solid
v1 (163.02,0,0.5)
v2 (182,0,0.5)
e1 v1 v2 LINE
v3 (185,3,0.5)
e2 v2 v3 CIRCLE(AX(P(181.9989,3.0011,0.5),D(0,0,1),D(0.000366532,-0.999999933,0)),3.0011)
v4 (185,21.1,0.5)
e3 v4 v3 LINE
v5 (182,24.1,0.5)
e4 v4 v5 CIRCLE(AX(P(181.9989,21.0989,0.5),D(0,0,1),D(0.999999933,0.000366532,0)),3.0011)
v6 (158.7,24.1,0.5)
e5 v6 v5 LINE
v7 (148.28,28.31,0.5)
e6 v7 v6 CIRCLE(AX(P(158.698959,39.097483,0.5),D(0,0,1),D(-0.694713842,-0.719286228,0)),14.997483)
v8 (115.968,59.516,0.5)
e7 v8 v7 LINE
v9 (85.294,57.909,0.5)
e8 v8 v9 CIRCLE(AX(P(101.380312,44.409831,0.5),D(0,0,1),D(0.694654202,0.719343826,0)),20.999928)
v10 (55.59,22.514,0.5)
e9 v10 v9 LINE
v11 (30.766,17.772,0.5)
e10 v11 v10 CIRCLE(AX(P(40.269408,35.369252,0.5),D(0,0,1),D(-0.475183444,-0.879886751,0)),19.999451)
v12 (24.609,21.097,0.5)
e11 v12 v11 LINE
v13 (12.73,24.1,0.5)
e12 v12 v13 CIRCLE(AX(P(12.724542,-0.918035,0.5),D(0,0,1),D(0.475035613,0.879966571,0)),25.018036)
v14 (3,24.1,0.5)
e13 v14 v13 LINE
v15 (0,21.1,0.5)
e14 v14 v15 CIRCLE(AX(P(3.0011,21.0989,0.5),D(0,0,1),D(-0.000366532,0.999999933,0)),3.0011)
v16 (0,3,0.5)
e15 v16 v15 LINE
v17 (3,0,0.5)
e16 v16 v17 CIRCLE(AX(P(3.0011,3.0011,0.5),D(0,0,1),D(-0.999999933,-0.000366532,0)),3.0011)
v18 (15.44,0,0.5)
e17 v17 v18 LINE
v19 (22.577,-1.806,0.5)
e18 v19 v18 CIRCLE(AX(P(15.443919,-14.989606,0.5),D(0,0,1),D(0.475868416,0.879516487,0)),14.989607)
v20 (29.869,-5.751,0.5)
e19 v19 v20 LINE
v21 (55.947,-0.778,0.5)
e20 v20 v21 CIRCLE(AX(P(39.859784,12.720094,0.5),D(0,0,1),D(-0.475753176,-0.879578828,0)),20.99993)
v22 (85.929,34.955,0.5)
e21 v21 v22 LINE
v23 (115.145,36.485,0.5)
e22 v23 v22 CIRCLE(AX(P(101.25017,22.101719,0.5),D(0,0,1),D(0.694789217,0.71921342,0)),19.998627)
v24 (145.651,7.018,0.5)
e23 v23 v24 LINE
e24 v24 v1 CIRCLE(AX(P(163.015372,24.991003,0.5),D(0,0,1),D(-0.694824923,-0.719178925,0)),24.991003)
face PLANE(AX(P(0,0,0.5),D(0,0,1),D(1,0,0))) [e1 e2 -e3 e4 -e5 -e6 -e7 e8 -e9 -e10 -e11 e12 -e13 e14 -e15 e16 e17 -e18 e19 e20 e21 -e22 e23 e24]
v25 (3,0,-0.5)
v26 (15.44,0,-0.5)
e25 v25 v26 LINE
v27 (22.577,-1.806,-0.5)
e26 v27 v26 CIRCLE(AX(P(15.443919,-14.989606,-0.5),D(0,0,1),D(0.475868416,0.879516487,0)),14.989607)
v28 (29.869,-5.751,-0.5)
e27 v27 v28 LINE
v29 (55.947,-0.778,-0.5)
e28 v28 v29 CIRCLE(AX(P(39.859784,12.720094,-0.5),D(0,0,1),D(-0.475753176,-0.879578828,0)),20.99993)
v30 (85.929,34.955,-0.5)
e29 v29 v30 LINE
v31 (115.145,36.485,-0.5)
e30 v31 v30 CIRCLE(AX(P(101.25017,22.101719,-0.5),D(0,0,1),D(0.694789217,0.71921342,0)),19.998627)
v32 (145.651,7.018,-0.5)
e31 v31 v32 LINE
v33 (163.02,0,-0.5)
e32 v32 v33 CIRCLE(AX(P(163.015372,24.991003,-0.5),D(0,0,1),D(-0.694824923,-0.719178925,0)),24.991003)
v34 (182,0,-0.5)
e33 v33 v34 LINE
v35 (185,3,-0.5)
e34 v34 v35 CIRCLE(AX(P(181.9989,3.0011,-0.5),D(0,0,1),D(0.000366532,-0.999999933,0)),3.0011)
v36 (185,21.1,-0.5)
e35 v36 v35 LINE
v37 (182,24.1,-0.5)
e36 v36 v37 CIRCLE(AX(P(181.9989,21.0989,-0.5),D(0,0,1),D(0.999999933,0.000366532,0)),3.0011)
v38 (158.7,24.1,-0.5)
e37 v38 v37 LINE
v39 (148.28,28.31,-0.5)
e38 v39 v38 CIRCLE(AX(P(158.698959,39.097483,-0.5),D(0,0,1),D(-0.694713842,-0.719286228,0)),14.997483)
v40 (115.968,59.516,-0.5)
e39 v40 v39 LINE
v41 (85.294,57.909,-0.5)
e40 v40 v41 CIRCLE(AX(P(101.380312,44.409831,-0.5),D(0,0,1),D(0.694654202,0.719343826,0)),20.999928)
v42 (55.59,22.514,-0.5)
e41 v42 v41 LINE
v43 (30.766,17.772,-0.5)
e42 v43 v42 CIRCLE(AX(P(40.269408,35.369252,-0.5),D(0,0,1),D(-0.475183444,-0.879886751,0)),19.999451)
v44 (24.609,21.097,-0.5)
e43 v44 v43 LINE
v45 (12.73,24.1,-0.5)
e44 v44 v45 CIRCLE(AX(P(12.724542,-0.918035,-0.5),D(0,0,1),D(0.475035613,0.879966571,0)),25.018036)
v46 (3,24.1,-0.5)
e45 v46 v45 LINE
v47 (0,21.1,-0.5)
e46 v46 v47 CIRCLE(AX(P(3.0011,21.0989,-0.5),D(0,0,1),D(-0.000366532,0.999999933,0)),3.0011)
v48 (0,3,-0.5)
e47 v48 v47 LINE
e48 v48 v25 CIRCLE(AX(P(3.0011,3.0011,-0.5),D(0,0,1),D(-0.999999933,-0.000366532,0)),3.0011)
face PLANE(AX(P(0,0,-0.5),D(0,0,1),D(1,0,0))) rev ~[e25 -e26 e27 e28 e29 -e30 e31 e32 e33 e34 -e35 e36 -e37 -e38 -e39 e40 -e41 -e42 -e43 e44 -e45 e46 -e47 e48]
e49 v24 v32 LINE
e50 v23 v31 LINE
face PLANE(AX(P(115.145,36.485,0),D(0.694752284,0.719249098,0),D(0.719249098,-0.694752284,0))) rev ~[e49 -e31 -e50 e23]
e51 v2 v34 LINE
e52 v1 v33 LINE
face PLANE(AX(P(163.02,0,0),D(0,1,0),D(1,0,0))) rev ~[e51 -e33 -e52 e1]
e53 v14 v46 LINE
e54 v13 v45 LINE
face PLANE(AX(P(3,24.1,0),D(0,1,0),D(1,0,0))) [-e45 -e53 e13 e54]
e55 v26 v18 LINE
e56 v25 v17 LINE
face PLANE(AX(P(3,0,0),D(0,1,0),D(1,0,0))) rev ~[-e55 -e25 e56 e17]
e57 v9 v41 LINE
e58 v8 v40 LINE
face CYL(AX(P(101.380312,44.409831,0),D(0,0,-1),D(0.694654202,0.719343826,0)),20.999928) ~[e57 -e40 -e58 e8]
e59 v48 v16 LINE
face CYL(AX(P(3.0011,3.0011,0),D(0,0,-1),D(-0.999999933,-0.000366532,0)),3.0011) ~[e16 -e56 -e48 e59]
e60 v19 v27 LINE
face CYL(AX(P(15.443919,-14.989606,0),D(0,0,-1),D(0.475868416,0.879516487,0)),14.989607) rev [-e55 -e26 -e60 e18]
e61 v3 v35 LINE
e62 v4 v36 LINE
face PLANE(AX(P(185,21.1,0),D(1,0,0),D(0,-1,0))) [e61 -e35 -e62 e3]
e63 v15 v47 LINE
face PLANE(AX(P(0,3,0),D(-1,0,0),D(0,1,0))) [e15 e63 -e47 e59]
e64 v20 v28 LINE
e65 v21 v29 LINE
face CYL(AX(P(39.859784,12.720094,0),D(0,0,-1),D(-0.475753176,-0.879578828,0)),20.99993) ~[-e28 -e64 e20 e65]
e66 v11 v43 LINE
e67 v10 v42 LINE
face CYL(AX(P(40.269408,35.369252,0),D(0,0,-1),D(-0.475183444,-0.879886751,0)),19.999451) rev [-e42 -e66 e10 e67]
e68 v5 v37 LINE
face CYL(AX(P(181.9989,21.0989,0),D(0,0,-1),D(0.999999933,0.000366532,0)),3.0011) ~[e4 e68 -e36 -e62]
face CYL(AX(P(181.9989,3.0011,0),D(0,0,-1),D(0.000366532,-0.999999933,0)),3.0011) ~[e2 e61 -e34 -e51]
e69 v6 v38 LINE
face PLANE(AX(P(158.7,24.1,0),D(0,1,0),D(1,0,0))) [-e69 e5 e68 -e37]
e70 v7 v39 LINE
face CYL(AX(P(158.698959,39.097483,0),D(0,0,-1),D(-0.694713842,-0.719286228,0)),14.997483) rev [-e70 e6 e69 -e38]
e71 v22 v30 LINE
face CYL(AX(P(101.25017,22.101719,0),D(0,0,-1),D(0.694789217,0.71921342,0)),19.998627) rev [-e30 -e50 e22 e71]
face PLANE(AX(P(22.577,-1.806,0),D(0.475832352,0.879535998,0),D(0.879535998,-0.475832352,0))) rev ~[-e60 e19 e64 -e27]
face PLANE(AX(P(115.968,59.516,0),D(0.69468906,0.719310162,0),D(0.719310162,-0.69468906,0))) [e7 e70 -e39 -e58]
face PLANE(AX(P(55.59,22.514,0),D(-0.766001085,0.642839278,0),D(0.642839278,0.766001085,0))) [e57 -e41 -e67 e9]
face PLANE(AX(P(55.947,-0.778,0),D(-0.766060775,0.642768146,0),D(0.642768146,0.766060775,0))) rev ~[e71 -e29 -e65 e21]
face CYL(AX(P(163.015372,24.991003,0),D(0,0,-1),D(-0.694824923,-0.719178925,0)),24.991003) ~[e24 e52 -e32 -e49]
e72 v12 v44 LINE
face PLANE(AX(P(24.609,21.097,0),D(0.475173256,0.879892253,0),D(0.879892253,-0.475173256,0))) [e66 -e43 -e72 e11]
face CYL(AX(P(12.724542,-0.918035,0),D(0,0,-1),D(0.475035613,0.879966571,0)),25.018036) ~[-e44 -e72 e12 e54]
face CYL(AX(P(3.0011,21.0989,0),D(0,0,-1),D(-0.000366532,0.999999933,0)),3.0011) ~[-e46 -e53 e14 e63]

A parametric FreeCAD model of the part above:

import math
import FreeCAD as App
import Part
import Sketcher
Q = App.Units.Quantity

doc = App.newDocument("Part")
body = doc.addObject("PartDesign::Body", "Body")

# Sketch on XY plane
sketch1 = body.newObject("Sketcher::SketchObject", "Sketch")
sketch1.AttachmentSupport = (doc.getObject("XY_Plane"), [""])
sketch1.MapMode = "FlatFace"
sketch1.addGeometry(Part.LineSegment(App.Vector(0, 21.1, 0), App.Vector(0, 3, 0)), False)
sketch1.addGeometry(Part.ArcOfCircle(Part.Circle(App.Vector(3.0011, 3.0011, 0), App.Vector(0, 0, 1), 3.0011), math.radians(-179.978999), math.radians(-90.021001)), False)
sketch1.addGeometry(Part.LineSegment(App.Vector(3, 0, 0), App.Vector(15.44, 0, 0)), False)
sketch1.addGeometry(Part.ArcOfCircle(Part.Circle(App.Vector(15.444, -14.9894, 0), App.Vector(0, 0, 1), 14.989387), math.radians(61.583988), math.radians(90.01529)), False)
sketch1.addGeometry(Part.LineSegment(App.Vector(22.577, -1.806, 0), App.Vector(29.869, -5.751, 0)), False)
sketch1.addGeometry(Part.ArcOfCircle(Part.Circle(App.Vector(39.8598, 12.7202, 0), App.Vector(0, 0, 1), 21.000031), math.radians(-118.408303), math.radians(-39.998822)), False)
sketch1.addGeometry(Part.LineSegment(App.Vector(55.947, -0.778, 0), App.Vector(85.929, 34.955, 0)), False)
sketch1.addGeometry(Part.ArcOfCircle(Part.Circle(App.Vector(101.2502, 22.1018, 0), App.Vector(0, 0, 1), 19.998548), math.radians(45.989479), math.radians(140.006174)), False)
sketch1.addGeometry(Part.LineSegment(App.Vector(115.145, 36.485, 0), App.Vector(145.651, 7.018, 0)), False)
sketch1.addGeometry(Part.ArcOfCircle(Part.Circle(App.Vector(163.0155, 24.9912, 0), App.Vector(0, 0, 1), 24.991234), math.radians(-134.013165), math.radians(-89.989683)), False)
sketch1.addGeometry(Part.LineSegment(App.Vector(163.02, 0, 0), App.Vector(182, 0, 0)), False)
sketch1.addGeometry(Part.ArcOfCircle(Part.Circle(App.Vector(181.9989, 3.0011, 0), App.Vector(0, 0, 1), 3.0011), math.radians(-89.978999), math.radians(-0.021001)), False)
sketch1.addGeometry(Part.LineSegment(App.Vector(185, 3, 0), App.Vector(185, 21.1, 0)), False)
sketch1.addGeometry(Part.ArcOfCircle(Part.Circle(App.Vector(181.9989, 21.0989, 0), App.Vector(0, 0, 1), 3.0011), math.radians(0.021001), math.radians(89.978999)), False)
sketch1.addGeometry(Part.LineSegment(App.Vector(182, 24.1, 0), App.Vector(158.7, 24.1, 0)), False)
sketch1.addGeometry(Part.ArcOfCircle(Part.Circle(App.Vector(158.6991, 39.0977, 0), App.Vector(0, 0, 1), 14.997737), math.radians(-134.00423), math.radians(-89.996562)), False)
sketch1.addGeometry(Part.LineSegment(App.Vector(148.28, 28.31, 0), App.Vector(115.968, 59.516, 0)), False)
sketch1.addGeometry(Part.ArcOfCircle(Part.Circle(App.Vector(101.3803, 44.4098, 0), App.Vector(0, 0, 1), 20.999959), math.radians(46.000369), math.radians(139.997509)), False)
sketch1.addGeometry(Part.LineSegment(App.Vector(85.294, 57.909, 0), App.Vector(55.59, 22.514, 0)), False)
sketch1.addGeometry(Part.ArcOfCircle(Part.Circle(App.Vector(40.2694, 35.3692, 0), App.Vector(0, 0, 1), 19.999401), math.radians(-118.371345), math.radians(-39.99932)), False)
sketch1.addGeometry(Part.LineSegment(App.Vector(30.766, 17.772, 0), App.Vector(24.609, 21.097, 0)), False)
sketch1.addGeometry(Part.ArcOfCircle(Part.Circle(App.Vector(12.7244, -0.9184, 0), App.Vector(0, 0, 1), 25.018424), math.radians(61.638442), math.radians(89.987175)), False)
sketch1.addGeometry(Part.LineSegment(App.Vector(12.73, 24.1, 0), App.Vector(3, 24.1, 0)), False)
sketch1.addGeometry(Part.ArcOfCircle(Part.Circle(App.Vector(3.0011, 21.0989, 0), App.Vector(0, 0, 1), 3.0011), math.radians(90.021001), math.radians(179.978999)), False)
sketch1.addConstraint(Sketcher.Constraint("Coincident", 0, 2, 1, 1))
sketch1.addConstraint(Sketcher.Constraint("Coincident", 1, 2, 2, 1))
sketch1.addConstraint(Sketcher.Constraint("Coincident", 2, 2, 3, 2))
sketch1.addConstraint(Sketcher.Constraint("Coincident", 3, 1, 4, 1))
sketch1.addConstraint(Sketcher.Constraint("Coincident", 4, 2, 5, 1))
sketch1.addConstraint(Sketcher.Constraint("Coincident", 5, 2, 6, 1))
sketch1.addConstraint(Sketcher.Constraint("Coincident", 6, 2, 7, 2))
sketch1.addConstraint(Sketcher.Constraint("Coincident", 7, 1, 8, 1))
sketch1.addConstraint(Sketcher.Constraint("Coincident", 8, 2, 9, 1))
sketch1.addConstraint(Sketcher.Constraint("Coincident", 9, 2, 10, 1))
sketch1.addConstraint(Sketcher.Constraint("Coincident", 10, 2, 11, 1))
sketch1.addConstraint(Sketcher.Constraint("Coincident", 11, 2, 12, 1))
sketch1.addConstraint(Sketcher.Constraint("Coincident", 12, 2, 13, 1))
sketch1.addConstraint(Sketcher.Constraint("Coincident", 13, 2, 14, 1))
sketch1.addConstraint(Sketcher.Constraint("Coincident", 14, 2, 15, 2))
sketch1.addConstraint(Sketcher.Constraint("Coincident", 15, 1, 16, 1))
sketch1.addConstraint(Sketcher.Constraint("Coincident", 16, 2, 17, 1))
sketch1.addConstraint(Sketcher.Constraint("Coincident", 17, 2, 18, 1))
sketch1.addConstraint(Sketcher.Constraint("Coincident", 18, 2, 19, 2))
sketch1.addConstraint(Sketcher.Constraint("Coincident", 19, 1, 20, 1))
sketch1.addConstraint(Sketcher.Constraint("Coincident", 20, 2, 21, 1))
sketch1.addConstraint(Sketcher.Constraint("Coincident", 21, 2, 22, 1))
sketch1.addConstraint(Sketcher.Constraint("Coincident", 22, 2, 23, 1))
sketch1.addConstraint(Sketcher.Constraint("Coincident", 23, 2, 0, 1))
sketch1.addConstraint(Sketcher.Constraint("Vertical", 0))
sketch1.addConstraint(Sketcher.Constraint("Horizontal", 2))
sketch1.addConstraint(Sketcher.Constraint("Horizontal", 10))
sketch1.addConstraint(Sketcher.Constraint("Vertical", 12))
sketch1.addConstraint(Sketcher.Constraint("Horizontal", 14))
sketch1.addConstraint(Sketcher.Constraint("Horizontal", 22))
sketch1.addConstraint(Sketcher.Constraint("PointOnObject", 0, 2, -2))
sketch1.addConstraint(Sketcher.Constraint("PointOnObject", 1, 2, -1))
sketch1.addConstraint(Sketcher.Constraint("PointOnObject", 9, 2, -1))
sketch1.addConstraint(Sketcher.Constraint("Radius", 5, Q("21 mm")))
sketch1.addConstraint(Sketcher.Constraint("Radius", 17, Q("21 mm")))
sketch1.addConstraint(Sketcher.Constraint("DistanceX", 14, 2, 14, 1, Q("23.3 mm")))
sketch1.addConstraint(Sketcher.Constraint("DistanceY", 0, 2, 0, 1, Q("18.1 mm")))
sketch1.addConstraint(Sketcher.Constraint("DistanceY", 12, 1, 12, 2, Q("18.1 mm")))
sketch1.addConstraint(Sketcher.Constraint("DistanceY", -1, 1, 0, 2, Q("3 mm")))
sketch1.addConstraint(Sketcher.Constraint("DistanceX", -1, 1, 1, 2, Q("3 mm")))
sketch1.addConstraint(Sketcher.Constraint("DistanceX", -1, 1, 10, 2, Q("182 mm")))
sketch1.addConstraint(Sketcher.Constraint("DistanceX", -1, 1, 11, 2, Q("185 mm")))
sketch1.addConstraint(Sketcher.Constraint("DistanceY", -1, 1, 11, 2, Q("3 mm")))
sketch1.addConstraint(Sketcher.Constraint("DistanceX", -1, 1, 13, 2, Q("182 mm")))
sketch1.addConstraint(Sketcher.Constraint("DistanceX", -1, 1, 22, 2, Q("3 mm")))
sketch1.addConstraint(Sketcher.Constraint("Radius", 1, Q("3.001 mm")))
sketch1.addConstraint(Sketcher.Constraint("Radius", 11, Q("3.001 mm")))
sketch1.addConstraint(Sketcher.Constraint("Radius", 13, Q("3.001 mm")))
sketch1.addConstraint(Sketcher.Constraint("Radius", 23, Q("3.001 mm")))
sketch1.addConstraint(Sketcher.Constraint("DistanceY", 12, 2, 13, 2, Q("3 mm")))
sketch1.addConstraint(Sketcher.Constraint("DistanceY", 23, 2, 22, 2, Q("3 mm")))
sketch1.addConstraint(Sketcher.Constraint("DistanceX", 2, 1, 2, 2, Q("12.44 mm")))
sketch1.addConstraint(Sketcher.Constraint("DistanceX", 10, 1, 10, 2, Q("18.98 mm")))
sketch1.addConstraint(Sketcher.Constraint("DistanceX", 22, 2, 22, 1, Q("9.73 mm")))
sketch1.addConstraint(Sketcher.Constraint("Radius", 3, Q("14.9894 mm")))
sketch1.addConstraint(Sketcher.Constraint("Radius", 7, Q("19.9985 mm")))
sketch1.addConstraint(Sketcher.Constraint("Radius", 9, Q("24.9912 mm")))
sketch1.addConstraint(Sketcher.Constraint("Radius", 15, Q("14.9977 mm")))
sketch1.addConstraint(Sketcher.Constraint("Radius", 19, Q("19.9994 mm")))
sketch1.addConstraint(Sketcher.Constraint("Radius", 21, Q("25.0184 mm")))
sketch1.addConstraint(Sketcher.Constraint("DistanceX", -1, 1, 15, 1, Q("148.28 mm")))
sketch1.addConstraint(Sketcher.Constraint("DistanceY", -1, 1, 15, 1, Q("28.31 mm")))
sketch1.addConstraint(Sketcher.Constraint("DistanceX", -1, 1, 18, 2, Q("55.59 mm")))
sketch1.addConstraint(Sketcher.Constraint("DistanceX", 7, 3, 17, 3, Q("0.13 mm")))
sketch1.addConstraint(Sketcher.Constraint("DistanceX", 3, 1, 5, 2, Q("33.37 mm")))
sketch1.addConstraint(Sketcher.Constraint("DistanceY", 6, 2, 7, 1, Q("1.53 mm")))
sketch1.addConstraint(Sketcher.Constraint("DistanceX", -1, 1, 3, 3, Q("15.444 mm")))
sketch1.addConstraint(Sketcher.Constraint("DistanceX", -1, 1, 3, 1, Q("22.577 mm")))
sketch1.addConstraint(Sketcher.Constraint("DistanceX", -1, 1, 4, 2, Q("29.869 mm")))
sketch1.addConstraint(Sketcher.Constraint("DistanceY", 4, 2, -1, 1, Q("5.751 mm")))
sketch1.addConstraint(Sketcher.Constraint("DistanceY", 5, 2, -1, 1, Q("0.778 mm")))
sketch1.addConstraint(Sketcher.Constraint("DistanceX", -1, 1, 6, 2, Q("85.929 mm")))
sketch1.addConstraint(Sketcher.Constraint("DistanceY", -1, 1, 6, 2, Q("34.955 mm")))
sketch1.addConstraint(Sketcher.Constraint("DistanceX", -1, 1, 7, 1, Q("115.145 mm")))
sketch1.addConstraint(Sketcher.Constraint("DistanceX", -1, 1, 8, 2, Q("145.651 mm")))
sketch1.addConstraint(Sketcher.Constraint("DistanceY", -1, 1, 8, 2, Q("7.018 mm")))
sketch1.addConstraint(Sketcher.Constraint("DistanceX", -1, 1, 16, 2, Q("115.968 mm")))
sketch1.addConstraint(Sketcher.Constraint("DistanceY", -1, 1, 16, 2, Q("59.516 mm")))
sketch1.addConstraint(Sketcher.Constraint("DistanceX", -1, 1, 17, 2, Q("85.294 mm")))
sketch1.addConstraint(Sketcher.Constraint("DistanceY", -1, 1, 18, 2, Q("22.514 mm")))
sketch1.addConstraint(Sketcher.Constraint("DistanceX", -1, 1, 19, 1, Q("30.766 mm")))
sketch1.addConstraint(Sketcher.Constraint("DistanceY", -1, 1, 19, 1, Q("17.772 mm")))
sketch1.addConstraint(Sketcher.Constraint("DistanceX", -1, 1, 20, 2, Q("24.609 mm")))
sketch1.addConstraint(Sketcher.Constraint("DistanceY", -1, 1, 20, 2, Q("21.097 mm")))
pad1 = body.newObject("PartDesign::Pad", "Pad")
pad1.Profile = sketch1
pad1.Length = 1
pad1.Midplane = True

doc.recompute()
